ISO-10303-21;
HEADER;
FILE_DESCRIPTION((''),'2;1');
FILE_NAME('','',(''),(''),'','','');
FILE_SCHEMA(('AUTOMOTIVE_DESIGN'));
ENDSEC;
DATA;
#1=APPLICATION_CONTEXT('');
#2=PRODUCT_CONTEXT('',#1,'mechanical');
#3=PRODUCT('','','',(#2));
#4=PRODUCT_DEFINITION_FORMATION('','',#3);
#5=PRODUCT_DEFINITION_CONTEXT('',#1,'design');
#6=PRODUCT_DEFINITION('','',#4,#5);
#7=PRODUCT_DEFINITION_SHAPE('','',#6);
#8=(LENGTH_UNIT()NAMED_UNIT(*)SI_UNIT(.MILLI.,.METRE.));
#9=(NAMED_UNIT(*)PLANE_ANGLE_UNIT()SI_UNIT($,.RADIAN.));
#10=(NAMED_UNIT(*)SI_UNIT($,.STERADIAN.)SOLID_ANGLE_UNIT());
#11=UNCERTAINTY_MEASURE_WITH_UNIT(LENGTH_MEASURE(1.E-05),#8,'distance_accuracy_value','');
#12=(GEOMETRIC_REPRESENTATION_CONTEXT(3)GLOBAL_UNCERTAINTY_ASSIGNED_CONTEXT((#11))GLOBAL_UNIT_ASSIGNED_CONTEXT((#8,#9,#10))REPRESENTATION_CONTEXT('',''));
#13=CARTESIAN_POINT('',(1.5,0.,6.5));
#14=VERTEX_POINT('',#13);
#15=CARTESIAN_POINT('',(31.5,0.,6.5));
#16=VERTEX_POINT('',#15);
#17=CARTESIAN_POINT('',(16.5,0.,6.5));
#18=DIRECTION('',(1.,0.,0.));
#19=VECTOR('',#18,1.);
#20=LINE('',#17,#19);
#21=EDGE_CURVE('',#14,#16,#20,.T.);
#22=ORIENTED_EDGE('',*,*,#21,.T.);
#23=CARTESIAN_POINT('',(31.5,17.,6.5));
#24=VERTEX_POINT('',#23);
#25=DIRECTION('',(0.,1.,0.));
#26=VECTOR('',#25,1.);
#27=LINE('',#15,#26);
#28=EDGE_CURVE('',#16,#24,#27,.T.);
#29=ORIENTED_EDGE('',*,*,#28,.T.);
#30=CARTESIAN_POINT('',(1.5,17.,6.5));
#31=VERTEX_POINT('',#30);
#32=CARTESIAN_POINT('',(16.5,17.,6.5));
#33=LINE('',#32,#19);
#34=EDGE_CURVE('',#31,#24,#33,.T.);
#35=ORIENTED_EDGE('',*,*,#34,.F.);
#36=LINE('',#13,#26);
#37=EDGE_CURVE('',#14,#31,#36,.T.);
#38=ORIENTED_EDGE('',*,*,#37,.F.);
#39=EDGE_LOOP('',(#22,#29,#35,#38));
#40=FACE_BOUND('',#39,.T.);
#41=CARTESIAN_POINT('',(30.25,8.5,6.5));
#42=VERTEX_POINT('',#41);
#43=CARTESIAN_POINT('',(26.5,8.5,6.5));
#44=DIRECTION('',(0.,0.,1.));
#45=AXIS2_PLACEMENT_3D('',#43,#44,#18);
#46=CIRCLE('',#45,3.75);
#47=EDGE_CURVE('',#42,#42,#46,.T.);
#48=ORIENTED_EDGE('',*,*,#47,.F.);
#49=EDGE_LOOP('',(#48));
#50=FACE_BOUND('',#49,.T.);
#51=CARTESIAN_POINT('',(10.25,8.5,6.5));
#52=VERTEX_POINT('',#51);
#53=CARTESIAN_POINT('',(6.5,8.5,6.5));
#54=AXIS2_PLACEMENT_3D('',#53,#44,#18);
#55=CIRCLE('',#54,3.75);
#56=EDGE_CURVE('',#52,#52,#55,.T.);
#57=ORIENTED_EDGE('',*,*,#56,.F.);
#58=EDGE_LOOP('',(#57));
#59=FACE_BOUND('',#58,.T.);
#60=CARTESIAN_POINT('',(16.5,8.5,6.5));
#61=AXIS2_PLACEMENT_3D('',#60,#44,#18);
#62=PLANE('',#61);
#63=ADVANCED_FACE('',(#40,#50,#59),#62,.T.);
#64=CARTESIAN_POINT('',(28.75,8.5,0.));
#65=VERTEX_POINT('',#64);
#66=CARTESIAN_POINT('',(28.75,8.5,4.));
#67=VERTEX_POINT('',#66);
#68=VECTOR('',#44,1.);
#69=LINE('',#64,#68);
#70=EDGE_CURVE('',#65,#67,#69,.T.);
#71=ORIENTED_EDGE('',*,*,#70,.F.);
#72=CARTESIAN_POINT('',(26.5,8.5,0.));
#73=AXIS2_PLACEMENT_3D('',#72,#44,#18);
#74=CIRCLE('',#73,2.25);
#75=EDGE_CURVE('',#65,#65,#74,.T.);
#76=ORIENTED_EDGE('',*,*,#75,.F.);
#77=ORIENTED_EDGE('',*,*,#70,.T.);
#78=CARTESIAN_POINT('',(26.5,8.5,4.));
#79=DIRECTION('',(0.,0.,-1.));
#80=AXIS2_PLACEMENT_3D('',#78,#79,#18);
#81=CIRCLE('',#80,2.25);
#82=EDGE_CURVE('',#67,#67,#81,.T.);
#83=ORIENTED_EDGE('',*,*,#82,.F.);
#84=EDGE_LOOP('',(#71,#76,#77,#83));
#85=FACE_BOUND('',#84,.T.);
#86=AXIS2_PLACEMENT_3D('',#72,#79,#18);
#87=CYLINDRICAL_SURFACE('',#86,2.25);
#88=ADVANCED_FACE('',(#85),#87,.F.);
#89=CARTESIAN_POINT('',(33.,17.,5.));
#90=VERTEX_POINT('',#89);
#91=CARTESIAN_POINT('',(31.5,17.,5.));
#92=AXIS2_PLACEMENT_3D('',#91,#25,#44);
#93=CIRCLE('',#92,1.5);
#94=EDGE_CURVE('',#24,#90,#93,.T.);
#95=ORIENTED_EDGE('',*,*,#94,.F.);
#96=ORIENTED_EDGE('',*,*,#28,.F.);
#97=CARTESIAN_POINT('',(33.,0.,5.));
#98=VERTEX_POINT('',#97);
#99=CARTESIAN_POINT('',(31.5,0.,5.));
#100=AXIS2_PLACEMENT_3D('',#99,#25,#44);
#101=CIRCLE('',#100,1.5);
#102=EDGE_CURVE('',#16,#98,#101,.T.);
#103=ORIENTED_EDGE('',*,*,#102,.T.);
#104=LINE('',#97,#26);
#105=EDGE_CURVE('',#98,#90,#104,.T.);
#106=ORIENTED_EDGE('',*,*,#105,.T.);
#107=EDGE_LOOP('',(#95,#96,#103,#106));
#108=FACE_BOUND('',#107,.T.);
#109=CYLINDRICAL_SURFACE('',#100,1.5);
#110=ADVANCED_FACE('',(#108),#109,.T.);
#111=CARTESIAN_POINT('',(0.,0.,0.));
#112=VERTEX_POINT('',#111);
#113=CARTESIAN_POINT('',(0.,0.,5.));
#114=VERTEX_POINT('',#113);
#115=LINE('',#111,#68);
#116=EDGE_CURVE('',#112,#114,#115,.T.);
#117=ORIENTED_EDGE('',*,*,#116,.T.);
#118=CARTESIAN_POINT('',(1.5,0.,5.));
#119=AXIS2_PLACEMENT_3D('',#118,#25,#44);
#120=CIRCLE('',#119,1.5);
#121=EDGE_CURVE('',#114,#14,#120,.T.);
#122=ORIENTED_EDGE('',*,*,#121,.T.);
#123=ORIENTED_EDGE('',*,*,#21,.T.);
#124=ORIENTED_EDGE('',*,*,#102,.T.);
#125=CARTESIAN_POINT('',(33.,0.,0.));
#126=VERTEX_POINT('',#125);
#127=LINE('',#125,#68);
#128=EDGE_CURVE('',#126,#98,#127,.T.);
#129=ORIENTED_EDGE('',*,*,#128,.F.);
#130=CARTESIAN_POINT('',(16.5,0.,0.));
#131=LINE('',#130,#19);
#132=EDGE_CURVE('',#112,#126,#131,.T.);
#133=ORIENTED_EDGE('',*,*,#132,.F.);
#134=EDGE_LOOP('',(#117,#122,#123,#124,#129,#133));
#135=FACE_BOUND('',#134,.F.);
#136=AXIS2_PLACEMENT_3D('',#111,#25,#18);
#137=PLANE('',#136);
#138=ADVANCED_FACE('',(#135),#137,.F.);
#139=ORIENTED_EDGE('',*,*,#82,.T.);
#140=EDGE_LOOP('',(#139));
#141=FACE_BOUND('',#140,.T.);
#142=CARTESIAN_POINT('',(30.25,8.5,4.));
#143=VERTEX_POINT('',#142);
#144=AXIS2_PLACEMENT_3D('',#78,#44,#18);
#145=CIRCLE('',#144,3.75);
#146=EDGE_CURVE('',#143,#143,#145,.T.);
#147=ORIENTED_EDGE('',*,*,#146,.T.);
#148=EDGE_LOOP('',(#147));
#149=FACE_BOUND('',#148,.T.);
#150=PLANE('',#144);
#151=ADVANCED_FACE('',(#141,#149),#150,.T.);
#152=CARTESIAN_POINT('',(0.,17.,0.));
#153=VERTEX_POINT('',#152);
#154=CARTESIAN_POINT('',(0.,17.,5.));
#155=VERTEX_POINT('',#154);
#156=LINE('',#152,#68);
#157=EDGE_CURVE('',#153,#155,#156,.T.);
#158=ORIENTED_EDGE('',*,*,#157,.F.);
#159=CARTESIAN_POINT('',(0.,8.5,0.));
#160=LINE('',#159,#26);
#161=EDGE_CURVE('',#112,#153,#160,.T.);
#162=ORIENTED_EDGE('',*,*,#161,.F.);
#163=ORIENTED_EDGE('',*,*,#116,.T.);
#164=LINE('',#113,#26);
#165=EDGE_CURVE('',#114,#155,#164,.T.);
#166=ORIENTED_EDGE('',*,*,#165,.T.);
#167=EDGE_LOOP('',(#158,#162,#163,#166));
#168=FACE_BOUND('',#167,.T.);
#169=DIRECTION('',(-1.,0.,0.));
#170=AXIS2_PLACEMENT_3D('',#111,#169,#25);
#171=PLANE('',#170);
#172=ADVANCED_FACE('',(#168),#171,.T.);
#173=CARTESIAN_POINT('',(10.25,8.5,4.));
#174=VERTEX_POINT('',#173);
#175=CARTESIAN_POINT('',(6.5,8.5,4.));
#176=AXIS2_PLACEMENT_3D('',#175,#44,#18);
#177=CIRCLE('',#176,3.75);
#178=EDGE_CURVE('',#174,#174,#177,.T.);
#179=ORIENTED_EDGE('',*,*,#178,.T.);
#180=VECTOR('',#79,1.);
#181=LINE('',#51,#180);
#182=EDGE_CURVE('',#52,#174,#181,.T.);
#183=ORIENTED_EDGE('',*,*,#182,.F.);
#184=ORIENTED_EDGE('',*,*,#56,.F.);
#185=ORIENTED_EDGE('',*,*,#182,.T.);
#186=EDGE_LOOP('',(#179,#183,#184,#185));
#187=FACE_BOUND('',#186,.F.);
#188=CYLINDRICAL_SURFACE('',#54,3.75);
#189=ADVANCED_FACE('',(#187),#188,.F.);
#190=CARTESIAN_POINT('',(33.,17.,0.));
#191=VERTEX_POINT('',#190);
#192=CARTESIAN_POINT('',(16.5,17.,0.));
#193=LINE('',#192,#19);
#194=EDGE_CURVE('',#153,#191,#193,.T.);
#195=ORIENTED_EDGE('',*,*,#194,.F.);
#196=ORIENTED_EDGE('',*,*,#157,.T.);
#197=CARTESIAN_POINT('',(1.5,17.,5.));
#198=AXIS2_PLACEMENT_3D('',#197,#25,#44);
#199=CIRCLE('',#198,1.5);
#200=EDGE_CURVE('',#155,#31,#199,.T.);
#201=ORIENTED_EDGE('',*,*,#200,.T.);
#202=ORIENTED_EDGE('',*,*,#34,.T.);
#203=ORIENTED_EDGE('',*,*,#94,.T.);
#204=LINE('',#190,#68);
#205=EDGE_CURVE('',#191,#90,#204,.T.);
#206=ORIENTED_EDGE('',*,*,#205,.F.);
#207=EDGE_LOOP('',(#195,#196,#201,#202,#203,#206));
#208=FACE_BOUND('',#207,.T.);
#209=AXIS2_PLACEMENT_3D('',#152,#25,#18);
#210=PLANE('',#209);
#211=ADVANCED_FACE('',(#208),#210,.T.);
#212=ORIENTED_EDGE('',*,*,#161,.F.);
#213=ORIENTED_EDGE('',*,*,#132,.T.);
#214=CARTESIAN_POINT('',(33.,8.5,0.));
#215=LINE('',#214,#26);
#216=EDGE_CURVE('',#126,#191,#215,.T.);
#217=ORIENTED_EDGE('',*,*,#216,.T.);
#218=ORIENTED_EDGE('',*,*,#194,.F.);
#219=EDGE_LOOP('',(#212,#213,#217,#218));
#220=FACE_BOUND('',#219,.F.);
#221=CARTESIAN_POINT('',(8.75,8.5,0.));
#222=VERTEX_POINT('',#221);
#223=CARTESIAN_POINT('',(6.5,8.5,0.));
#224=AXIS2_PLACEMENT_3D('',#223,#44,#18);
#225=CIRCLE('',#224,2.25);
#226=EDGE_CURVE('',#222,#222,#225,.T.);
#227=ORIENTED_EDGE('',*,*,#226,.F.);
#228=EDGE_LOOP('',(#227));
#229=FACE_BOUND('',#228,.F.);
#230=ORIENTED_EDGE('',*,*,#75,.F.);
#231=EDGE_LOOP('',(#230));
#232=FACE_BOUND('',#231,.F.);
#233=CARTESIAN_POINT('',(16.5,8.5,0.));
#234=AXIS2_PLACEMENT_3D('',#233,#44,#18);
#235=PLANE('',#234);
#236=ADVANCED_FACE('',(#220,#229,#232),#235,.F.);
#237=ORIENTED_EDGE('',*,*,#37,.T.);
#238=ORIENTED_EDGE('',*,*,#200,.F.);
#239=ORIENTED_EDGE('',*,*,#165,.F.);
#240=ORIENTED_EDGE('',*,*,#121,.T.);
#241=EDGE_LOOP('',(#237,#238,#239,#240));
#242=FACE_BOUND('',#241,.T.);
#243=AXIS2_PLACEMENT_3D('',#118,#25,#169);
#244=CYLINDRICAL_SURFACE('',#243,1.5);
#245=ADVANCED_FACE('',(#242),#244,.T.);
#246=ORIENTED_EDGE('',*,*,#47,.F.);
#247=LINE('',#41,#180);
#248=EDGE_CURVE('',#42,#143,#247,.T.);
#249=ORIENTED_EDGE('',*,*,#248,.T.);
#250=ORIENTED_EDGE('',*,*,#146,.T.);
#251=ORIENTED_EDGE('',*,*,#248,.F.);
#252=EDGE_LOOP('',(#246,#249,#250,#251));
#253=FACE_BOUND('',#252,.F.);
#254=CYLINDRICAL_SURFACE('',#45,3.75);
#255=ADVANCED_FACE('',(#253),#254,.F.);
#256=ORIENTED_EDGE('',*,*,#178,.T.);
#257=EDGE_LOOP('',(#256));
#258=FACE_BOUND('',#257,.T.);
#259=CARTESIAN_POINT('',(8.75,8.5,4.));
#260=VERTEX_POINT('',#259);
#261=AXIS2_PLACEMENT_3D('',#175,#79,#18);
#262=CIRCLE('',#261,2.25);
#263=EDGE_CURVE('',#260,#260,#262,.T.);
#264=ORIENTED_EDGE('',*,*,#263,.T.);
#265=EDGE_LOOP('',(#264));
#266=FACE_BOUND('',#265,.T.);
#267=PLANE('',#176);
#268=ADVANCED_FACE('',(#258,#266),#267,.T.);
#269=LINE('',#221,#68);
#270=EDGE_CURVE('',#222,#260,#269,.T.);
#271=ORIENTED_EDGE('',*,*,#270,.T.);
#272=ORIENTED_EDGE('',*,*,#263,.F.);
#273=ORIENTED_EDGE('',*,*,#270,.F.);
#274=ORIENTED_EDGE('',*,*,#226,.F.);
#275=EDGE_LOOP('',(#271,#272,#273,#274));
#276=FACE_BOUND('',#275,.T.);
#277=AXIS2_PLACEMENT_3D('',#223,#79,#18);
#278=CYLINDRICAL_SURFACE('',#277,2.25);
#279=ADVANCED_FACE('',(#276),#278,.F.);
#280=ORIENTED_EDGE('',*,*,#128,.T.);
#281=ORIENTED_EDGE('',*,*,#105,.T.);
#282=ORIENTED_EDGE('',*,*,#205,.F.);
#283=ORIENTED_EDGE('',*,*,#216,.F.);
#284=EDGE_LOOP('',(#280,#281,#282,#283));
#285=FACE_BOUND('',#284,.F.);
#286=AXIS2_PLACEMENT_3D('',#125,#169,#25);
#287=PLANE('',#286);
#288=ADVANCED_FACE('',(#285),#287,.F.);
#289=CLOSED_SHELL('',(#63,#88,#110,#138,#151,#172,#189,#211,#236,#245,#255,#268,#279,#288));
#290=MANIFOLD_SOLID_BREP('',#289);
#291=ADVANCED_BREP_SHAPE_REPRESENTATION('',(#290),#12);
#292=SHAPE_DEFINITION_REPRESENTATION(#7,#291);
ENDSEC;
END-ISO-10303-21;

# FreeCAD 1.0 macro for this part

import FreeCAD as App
import Part
import Sketcher

V = App.Vector


def edges_at(feature, points):
    """Names of the edges that pass closest to the given points."""
    edges = feature.Shape.Edges
    near = lambda p: min(range(len(edges)), key=lambda i: edges[i].distToShape(Part.Vertex(*p))[0])
    return sorted({f"Edge{near(p) + 1}" for p in points})

doc = App.newDocument("Part")
body = doc.addObject("PartDesign::Body", "Body")

# Sketch on XY plane
sketch1 = body.newObject("Sketcher::SketchObject", "Sketch")
sketch1.AttachmentSupport = (doc.getObject("XY_Plane"), [""])
sketch1.MapMode = "FlatFace"
sketch1.addGeometry(Part.LineSegment(V(0, 17, 0), V(0, 0, 0)), False)
sketch1.addGeometry(Part.LineSegment(V(0, 0, 0), V(33, 0, 0)), False)
sketch1.addGeometry(Part.LineSegment(V(33, 0, 0), V(33, 17, 0)), False)
sketch1.addGeometry(Part.LineSegment(V(33, 17, 0), V(0, 17, 0)), False)
sketch1.addGeometry(Part.Circle(V(6.5, 8.5, 0), V(0, 0, 1), 2.2), False)
sketch1.addGeometry(Part.Circle(V(26.5, 8.5, 0), V(0, 0, 1), 2.2), False)
sketch1.addConstraint(Sketcher.Constraint("Coincident", 0, 2, 1, 1))
sketch1.addConstraint(Sketcher.Constraint("Coincident", 1, 2, 2, 1))
sketch1.addConstraint(Sketcher.Constraint("Coincident", 2, 2, 3, 1))
sketch1.addConstraint(Sketcher.Constraint("Coincident", 3, 2, 0, 1))
sketch1.addConstraint(Sketcher.Constraint("Vertical", 0))
sketch1.addConstraint(Sketcher.Constraint("Horizontal", 1))
sketch1.addConstraint(Sketcher.Constraint("Vertical", 2))
sketch1.addConstraint(Sketcher.Constraint("Horizontal", 3))
sketch1.addConstraint(Sketcher.Constraint("Coincident", 0, 2, -1, 1))
sketch1.addConstraint(Sketcher.Constraint("Equal", 4, 5))
sketch1.addConstraint(Sketcher.Constraint("Horizontal", 4, 3, 5, 3))
sketch1.addConstraint(Sketcher.Constraint("Diameter", 4, 4.5))
sketch1.addConstraint(Sketcher.Constraint("DistanceX", 1, 1, 1, 2, 33.0))
sketch1.addConstraint(Sketcher.Constraint("DistanceY", 0, 2, 0, 1, 17.0))
sketch1.addConstraint(Sketcher.Constraint("DistanceX", 4, 3, 5, 3, 20.0))
sketch1.addConstraint(Sketcher.Constraint("DistanceX", -1, 1, 4, 3, 6.5))
sketch1.addConstraint(Sketcher.Constraint("DistanceY", -1, 1, 4, 3, 8.5))
pad1 = body.newObject("PartDesign::Pad", "Pad")
pad1.Profile = sketch1
pad1.Length = 6.5

# Sketch on XY plane
sketch2 = body.newObject("Sketcher::SketchObject", "Sketch001")
sketch2.AttachmentSupport = (doc.getObject("XY_Plane"), [""])
sketch2.MapMode = "FlatFace"
sketch2.AttachmentOffset = App.Placement(V(0, 0, 6.5), App.Rotation())
sketch2.addGeometry(Part.Circle(V(6.5, 8.5, 0), V(0, 0, 1), 3.8), False)
sketch2.addGeometry(Part.Circle(V(26.5, 8.5, 0), V(0, 0, 1), 3.8), False)
sketch2.addConstraint(Sketcher.Constraint("Equal", 0, 1))
sketch2.addConstraint(Sketcher.Constraint("Horizontal", 0, 3, 1, 3))
sketch2.addConstraint(Sketcher.Constraint("Diameter", 0, 7.5))
sketch2.addConstraint(Sketcher.Constraint("DistanceX", 0, 3, 1, 3, 20.0))
sketch2.addConstraint(Sketcher.Constraint("DistanceX", -1, 1, 0, 3, 6.5))
sketch2.addConstraint(Sketcher.Constraint("DistanceY", -1, 1, 0, 3, 8.5))
pocket1 = body.newObject("PartDesign::Pocket", "Pocket")
pocket1.Profile = sketch2
pocket1.Length = 2.5
doc.recompute()

fillet = body.newObject("PartDesign::Fillet", "Fillet")
fillet.Base = (pocket1, edges_at(pocket1, [(33, 8.5, 6.5), (0, 8.5, 6.5)]))
fillet.Radius = 1.5

doc.recompute()
